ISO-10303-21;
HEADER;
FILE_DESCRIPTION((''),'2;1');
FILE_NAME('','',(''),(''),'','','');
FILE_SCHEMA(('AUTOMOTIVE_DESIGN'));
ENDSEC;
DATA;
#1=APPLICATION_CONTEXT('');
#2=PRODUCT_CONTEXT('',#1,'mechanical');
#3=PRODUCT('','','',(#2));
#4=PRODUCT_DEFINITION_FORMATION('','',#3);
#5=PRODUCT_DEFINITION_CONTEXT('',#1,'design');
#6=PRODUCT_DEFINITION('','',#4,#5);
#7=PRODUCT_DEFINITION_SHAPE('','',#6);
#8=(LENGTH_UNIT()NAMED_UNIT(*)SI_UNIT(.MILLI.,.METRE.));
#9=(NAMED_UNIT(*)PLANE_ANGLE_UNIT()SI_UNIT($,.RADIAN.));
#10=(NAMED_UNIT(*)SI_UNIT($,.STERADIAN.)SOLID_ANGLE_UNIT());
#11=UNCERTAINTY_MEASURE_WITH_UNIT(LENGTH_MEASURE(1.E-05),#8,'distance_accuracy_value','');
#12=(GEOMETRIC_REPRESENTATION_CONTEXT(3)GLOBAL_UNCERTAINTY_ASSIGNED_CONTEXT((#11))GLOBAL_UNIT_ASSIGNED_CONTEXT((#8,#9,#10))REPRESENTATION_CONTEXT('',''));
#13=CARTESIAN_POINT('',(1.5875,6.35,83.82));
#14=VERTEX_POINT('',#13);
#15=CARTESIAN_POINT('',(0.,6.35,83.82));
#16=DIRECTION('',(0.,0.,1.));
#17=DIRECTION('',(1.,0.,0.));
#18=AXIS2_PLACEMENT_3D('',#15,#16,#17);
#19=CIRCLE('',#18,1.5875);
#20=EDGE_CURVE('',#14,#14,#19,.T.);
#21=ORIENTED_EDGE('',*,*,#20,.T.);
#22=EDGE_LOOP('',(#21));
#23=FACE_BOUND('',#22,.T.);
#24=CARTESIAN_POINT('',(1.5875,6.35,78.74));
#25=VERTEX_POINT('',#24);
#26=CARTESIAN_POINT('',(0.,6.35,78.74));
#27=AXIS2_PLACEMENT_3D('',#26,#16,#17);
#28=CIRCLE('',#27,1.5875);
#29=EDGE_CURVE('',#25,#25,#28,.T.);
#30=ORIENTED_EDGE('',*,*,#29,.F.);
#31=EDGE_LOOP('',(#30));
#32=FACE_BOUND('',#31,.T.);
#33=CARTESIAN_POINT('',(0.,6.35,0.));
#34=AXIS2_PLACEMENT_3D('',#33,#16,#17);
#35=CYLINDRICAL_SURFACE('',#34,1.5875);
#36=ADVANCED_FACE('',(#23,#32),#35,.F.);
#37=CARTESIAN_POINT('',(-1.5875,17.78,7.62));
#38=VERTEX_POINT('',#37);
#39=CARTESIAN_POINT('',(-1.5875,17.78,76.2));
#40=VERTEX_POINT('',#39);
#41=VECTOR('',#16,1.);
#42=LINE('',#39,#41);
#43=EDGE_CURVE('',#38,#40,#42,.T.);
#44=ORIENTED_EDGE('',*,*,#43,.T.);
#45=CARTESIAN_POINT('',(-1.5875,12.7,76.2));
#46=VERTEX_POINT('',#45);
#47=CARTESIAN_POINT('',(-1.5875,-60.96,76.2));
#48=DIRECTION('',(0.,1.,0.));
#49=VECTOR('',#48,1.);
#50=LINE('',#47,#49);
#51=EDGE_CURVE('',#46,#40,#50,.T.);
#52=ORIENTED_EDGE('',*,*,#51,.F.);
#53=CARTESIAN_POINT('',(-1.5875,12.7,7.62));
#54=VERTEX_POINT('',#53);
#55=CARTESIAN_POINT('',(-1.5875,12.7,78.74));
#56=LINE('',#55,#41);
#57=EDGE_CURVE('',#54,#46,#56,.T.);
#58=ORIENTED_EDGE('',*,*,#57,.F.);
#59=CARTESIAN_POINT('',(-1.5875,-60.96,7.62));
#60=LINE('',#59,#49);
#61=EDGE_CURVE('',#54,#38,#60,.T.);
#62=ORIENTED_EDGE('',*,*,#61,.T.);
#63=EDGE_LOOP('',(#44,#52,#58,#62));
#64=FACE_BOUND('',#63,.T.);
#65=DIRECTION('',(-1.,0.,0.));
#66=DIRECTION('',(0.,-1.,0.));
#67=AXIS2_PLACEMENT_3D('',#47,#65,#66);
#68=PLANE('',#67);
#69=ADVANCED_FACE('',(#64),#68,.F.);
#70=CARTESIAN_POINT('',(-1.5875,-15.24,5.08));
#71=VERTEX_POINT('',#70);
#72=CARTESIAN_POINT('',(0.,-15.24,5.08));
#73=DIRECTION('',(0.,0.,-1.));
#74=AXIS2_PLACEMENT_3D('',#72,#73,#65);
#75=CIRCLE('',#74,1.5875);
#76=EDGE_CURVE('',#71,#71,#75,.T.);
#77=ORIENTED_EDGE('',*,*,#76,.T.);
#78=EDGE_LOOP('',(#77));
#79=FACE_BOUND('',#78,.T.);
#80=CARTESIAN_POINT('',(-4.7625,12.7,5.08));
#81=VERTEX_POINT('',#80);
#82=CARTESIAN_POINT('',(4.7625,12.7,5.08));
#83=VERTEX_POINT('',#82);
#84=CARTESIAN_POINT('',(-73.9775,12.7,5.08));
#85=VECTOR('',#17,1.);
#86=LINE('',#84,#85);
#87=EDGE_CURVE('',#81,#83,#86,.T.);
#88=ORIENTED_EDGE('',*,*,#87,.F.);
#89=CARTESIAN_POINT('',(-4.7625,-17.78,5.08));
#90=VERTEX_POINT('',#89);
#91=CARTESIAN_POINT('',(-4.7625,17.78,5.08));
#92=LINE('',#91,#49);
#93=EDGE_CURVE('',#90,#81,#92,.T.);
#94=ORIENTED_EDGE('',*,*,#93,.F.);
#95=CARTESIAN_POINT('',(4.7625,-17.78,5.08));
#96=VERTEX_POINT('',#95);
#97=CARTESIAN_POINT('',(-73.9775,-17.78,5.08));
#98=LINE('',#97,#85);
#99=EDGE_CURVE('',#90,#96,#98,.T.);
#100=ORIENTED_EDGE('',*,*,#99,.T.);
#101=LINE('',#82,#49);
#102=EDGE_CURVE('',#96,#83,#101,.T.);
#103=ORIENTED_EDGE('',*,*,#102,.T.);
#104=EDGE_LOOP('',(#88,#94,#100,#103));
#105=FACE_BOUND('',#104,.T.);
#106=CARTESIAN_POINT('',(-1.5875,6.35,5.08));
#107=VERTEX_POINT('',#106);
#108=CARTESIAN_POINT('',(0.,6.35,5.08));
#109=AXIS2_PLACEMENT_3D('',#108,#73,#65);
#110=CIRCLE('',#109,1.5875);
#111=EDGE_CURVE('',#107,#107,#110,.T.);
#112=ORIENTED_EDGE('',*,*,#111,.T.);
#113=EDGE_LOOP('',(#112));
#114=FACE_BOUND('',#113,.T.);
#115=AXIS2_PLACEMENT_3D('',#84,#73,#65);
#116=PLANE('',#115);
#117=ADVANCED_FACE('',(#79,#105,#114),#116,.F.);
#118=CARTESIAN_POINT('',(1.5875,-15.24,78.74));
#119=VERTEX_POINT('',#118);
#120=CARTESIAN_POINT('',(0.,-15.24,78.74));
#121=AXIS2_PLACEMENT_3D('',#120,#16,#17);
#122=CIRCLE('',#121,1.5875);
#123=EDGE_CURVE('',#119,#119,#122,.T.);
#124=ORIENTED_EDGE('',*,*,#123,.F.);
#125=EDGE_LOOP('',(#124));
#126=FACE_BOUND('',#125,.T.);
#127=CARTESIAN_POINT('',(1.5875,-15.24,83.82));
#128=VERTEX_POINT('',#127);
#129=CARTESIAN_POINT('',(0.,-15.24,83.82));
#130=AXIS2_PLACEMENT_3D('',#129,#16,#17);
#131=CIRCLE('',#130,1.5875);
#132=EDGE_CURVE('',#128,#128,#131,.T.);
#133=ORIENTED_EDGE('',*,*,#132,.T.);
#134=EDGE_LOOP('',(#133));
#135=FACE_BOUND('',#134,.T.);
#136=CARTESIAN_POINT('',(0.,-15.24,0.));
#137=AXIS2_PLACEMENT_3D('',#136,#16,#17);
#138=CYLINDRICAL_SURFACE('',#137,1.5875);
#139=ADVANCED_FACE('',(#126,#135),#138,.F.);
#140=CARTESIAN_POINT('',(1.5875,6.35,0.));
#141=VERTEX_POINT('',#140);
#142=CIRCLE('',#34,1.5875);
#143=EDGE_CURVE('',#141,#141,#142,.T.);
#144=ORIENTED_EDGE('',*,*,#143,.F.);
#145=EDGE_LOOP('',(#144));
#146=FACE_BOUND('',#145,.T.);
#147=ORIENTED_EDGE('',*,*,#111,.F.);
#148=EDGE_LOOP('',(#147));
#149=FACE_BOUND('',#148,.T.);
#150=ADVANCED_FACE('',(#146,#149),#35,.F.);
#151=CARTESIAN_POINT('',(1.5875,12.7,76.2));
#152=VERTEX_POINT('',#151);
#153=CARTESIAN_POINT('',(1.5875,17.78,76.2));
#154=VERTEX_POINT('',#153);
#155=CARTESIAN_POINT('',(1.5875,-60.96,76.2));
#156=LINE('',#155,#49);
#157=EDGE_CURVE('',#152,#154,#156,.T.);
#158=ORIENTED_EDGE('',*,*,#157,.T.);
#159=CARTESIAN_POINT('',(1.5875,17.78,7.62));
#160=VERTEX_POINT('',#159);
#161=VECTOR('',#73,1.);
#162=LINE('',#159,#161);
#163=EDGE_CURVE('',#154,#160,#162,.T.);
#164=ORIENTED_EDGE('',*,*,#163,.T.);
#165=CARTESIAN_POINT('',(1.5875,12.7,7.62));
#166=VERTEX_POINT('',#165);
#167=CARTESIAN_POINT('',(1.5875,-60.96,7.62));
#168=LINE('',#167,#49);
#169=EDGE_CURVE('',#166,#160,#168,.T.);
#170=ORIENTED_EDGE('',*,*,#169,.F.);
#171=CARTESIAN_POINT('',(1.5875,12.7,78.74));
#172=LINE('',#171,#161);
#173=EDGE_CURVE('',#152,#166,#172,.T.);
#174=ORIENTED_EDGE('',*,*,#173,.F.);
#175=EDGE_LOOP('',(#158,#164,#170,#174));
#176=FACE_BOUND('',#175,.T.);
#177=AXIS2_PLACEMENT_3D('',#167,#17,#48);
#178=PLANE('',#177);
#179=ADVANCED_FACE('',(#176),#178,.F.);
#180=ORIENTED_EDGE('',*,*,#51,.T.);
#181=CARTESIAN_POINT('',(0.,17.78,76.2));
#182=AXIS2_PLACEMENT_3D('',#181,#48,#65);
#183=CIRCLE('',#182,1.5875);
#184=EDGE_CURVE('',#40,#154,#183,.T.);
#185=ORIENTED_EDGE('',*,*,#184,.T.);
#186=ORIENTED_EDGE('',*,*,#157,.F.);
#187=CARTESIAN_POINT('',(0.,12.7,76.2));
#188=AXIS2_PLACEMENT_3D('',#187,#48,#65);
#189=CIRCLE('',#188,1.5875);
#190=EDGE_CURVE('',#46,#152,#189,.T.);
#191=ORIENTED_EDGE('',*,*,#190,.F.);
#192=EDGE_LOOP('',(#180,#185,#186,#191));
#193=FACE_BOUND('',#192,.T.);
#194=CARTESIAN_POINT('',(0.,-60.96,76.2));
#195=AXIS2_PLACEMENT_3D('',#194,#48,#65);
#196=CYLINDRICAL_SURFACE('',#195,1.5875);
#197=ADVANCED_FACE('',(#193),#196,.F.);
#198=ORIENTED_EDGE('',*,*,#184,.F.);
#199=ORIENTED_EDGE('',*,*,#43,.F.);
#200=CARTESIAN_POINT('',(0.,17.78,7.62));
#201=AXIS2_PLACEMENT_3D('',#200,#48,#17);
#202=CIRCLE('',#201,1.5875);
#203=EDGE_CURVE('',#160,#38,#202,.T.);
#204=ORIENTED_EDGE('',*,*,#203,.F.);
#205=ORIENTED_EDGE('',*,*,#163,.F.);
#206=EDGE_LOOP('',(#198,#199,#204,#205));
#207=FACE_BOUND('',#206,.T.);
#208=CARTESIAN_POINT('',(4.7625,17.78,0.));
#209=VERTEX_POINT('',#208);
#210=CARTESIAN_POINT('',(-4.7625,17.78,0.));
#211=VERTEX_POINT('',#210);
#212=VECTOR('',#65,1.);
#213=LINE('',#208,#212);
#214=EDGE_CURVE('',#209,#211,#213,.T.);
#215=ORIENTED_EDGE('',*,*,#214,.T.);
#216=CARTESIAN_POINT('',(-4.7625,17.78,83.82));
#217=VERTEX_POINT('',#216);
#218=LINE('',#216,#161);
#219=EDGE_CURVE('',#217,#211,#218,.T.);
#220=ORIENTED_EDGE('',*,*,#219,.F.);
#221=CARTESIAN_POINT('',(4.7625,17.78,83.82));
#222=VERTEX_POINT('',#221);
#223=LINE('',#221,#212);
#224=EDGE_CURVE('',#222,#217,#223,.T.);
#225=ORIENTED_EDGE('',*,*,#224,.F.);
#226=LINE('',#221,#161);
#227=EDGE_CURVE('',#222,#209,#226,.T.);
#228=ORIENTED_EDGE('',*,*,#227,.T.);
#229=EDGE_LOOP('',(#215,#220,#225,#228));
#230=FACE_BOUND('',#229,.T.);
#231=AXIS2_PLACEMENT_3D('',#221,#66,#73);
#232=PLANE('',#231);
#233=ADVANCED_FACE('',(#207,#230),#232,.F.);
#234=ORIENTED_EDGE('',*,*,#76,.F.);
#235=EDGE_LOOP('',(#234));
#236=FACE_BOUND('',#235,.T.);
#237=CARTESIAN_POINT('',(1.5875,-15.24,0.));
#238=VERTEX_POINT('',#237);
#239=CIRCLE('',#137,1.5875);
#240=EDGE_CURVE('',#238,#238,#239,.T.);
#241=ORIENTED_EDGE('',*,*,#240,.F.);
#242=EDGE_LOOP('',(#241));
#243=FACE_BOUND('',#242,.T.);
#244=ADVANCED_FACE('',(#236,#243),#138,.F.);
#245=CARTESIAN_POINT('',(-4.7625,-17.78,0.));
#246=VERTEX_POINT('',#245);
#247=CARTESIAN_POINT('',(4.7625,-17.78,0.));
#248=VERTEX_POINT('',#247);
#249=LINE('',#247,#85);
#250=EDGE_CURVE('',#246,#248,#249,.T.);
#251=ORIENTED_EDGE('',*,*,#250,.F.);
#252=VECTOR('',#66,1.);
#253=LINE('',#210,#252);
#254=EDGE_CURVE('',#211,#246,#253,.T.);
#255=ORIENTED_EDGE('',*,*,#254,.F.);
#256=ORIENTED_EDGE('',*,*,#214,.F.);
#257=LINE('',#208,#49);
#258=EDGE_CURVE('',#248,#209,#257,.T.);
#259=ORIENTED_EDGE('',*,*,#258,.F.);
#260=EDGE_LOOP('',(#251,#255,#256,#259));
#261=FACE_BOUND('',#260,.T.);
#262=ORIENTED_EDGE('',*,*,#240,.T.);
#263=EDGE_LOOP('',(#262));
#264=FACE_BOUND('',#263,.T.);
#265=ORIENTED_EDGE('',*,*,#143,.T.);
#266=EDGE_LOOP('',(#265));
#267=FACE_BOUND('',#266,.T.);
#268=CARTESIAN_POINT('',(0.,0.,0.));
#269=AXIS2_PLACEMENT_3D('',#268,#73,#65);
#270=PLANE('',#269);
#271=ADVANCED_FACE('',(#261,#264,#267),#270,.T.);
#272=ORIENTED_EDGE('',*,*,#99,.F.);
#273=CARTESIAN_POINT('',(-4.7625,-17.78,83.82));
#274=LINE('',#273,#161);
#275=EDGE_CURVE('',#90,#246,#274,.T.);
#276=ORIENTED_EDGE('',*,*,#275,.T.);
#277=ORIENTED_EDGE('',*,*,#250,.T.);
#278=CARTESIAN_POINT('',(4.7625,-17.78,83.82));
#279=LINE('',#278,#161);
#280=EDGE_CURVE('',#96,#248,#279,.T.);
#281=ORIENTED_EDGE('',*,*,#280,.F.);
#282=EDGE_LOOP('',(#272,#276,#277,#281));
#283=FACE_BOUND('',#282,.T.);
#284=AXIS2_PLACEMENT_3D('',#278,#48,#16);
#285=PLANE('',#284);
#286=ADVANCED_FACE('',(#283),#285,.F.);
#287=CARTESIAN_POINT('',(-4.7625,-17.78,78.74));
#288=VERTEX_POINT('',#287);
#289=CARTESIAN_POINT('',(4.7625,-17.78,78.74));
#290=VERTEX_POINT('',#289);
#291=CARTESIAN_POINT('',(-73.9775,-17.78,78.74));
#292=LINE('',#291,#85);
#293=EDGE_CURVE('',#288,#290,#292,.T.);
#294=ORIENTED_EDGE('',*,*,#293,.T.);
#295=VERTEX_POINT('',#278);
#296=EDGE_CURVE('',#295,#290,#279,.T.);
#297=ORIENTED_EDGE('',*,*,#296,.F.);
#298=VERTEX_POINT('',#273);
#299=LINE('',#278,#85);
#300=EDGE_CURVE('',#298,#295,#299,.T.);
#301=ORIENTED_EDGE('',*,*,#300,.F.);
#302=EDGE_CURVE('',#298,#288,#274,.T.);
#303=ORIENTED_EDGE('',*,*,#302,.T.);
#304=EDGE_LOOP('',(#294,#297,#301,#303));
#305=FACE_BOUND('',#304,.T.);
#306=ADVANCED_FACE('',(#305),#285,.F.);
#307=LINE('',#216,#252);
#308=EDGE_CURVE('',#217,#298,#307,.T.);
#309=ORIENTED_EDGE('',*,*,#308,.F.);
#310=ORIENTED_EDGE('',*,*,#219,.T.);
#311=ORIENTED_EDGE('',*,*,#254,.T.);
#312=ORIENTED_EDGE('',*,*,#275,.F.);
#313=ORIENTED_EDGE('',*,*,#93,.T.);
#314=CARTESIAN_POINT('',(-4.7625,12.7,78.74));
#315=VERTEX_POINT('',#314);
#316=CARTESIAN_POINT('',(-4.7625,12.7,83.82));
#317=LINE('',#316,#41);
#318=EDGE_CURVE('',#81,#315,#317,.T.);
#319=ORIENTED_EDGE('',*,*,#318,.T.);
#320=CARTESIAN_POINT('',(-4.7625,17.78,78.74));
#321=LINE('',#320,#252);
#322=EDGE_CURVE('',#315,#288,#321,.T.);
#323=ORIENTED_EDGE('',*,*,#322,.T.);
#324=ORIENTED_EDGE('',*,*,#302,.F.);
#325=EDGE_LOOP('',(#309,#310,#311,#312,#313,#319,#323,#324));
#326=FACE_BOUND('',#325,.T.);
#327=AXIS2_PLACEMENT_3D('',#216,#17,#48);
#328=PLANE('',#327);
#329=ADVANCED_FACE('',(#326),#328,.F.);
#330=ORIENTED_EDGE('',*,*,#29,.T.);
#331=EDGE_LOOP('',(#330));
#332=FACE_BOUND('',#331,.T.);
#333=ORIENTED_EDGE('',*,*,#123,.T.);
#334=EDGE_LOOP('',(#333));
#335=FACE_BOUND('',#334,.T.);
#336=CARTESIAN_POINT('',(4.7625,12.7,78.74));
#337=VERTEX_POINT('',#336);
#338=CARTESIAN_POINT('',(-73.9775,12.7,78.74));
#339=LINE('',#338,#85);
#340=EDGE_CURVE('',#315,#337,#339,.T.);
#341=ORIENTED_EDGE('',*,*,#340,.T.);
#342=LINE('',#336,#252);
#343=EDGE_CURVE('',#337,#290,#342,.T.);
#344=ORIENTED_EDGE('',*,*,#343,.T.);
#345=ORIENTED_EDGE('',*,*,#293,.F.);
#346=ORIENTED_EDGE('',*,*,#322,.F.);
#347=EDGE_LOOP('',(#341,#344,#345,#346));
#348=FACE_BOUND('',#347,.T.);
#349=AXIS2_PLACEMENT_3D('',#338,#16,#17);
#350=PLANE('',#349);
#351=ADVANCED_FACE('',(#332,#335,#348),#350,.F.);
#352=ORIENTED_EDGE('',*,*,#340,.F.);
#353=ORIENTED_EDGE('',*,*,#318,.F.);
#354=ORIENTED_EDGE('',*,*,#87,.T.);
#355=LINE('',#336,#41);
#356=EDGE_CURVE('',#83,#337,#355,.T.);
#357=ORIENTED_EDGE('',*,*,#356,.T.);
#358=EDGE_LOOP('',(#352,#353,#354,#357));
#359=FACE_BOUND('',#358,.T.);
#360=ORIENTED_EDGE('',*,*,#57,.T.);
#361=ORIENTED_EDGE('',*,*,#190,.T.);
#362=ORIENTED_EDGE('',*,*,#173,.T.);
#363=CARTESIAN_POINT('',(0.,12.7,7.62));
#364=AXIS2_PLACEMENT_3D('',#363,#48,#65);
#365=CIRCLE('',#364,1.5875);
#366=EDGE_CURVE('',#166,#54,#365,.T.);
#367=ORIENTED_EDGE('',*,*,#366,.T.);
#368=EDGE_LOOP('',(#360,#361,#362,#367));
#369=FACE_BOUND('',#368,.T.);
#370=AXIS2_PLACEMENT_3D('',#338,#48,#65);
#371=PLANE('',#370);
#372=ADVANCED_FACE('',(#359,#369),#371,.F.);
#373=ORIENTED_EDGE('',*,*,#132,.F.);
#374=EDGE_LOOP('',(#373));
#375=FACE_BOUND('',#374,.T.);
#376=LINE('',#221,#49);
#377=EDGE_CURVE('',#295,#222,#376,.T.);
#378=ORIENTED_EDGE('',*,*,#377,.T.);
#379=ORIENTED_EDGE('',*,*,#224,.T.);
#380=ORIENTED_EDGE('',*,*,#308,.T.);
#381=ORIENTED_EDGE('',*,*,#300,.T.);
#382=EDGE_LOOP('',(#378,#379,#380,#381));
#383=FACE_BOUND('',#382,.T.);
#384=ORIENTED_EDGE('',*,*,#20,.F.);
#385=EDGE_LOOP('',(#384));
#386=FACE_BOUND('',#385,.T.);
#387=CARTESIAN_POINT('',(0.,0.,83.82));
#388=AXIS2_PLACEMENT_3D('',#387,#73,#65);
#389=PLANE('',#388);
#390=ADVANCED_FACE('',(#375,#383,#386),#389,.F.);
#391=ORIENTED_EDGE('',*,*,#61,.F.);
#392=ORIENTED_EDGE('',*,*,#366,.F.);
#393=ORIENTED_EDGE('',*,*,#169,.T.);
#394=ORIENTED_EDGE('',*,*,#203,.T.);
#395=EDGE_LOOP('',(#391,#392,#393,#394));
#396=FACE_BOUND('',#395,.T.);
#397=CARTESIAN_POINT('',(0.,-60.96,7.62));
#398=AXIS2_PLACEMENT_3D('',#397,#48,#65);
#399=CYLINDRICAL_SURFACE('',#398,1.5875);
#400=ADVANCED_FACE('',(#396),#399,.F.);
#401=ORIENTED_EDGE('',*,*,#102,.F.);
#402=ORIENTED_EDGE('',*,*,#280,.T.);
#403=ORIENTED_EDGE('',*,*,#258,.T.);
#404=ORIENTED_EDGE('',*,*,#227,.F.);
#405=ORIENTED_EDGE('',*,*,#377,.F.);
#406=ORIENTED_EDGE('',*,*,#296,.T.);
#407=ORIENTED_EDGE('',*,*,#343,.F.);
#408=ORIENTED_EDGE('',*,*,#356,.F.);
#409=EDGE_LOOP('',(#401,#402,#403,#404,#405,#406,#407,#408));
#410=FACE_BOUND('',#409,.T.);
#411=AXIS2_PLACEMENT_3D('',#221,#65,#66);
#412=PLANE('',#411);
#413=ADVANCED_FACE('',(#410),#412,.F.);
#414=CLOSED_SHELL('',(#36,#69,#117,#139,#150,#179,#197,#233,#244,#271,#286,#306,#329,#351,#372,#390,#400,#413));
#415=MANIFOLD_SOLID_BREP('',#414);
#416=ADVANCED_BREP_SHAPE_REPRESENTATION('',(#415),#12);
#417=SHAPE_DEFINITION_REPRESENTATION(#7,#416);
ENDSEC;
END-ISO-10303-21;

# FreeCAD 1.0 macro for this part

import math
import FreeCAD as App
import Part
import Sketcher
Q = App.Units.Quantity


def add_polygon(sketch, points):
    """Adds a closed chain of lines whose ends are joined by coincident constraints."""
    first, n = sketch.GeometryCount, len(points)
    for a, b in zip(points, points[1:] + points[:1]):
        sketch.addGeometry(Part.LineSegment(App.Vector(*a, 0), App.Vector(*b, 0)), False)
    for i in range(n):
        sketch.addConstraint(Sketcher.Constraint("Coincident", first + i, 2, first + (i + 1) % n, 1))

doc = App.newDocument("Part")
body = doc.addObject("PartDesign::Body", "Body")

sketch1 = body.newObject("Sketcher::SketchObject", "Sketch")
sketch1.AttachmentSupport = (doc.getObject("XY_Plane"), [""])
sketch1.MapMode = "FlatFace"
add_polygon(sketch1, [(-5, 18), (-5, -18), (5, -18), (5, 18)])
sketch1.addConstraint([
    Sketcher.Constraint("Vertical", 0),
    Sketcher.Constraint("Horizontal", 1),
    Sketcher.Constraint("Vertical", 2),
    Sketcher.Constraint("Horizontal", 3),
    Sketcher.Constraint("Symmetric", 0, 2, 2, 2, -1, 1),
    Sketcher.Constraint("DistanceY", 0, 2, 0, 1, Q("1.4 in")),
    Sketcher.Constraint("DistanceX", 1, 1, 1, 2, Q("0.375 in")),
])
pad1 = body.newObject("PartDesign::Pad", "Pad")
pad1.Profile = sketch1
pad1.Length = Q("3.3 in")

sketch2 = body.newObject("Sketcher::SketchObject", "Sketch001")
sketch2.AttachmentSupport = (doc.getObject("YZ_Plane"), [""])
sketch2.MapMode = "FlatFace"
sketch2.AttachmentOffset = App.Placement(App.Vector(0, 0, 0.1875 * 25.4), App.Rotation())
add_polygon(sketch2, [(13, 79), (-18, 79), (-18, 5), (13, 5)])
sketch2.addConstraint([
    Sketcher.Constraint("Horizontal", 0),
    Sketcher.Constraint("Vertical", 1),
    Sketcher.Constraint("Horizontal", 2),
    Sketcher.Constraint("Vertical", 3),
    Sketcher.Constraint("DistanceX", 0, 2, 0, 1, Q("1.2 in")),
    Sketcher.Constraint("DistanceY", 1, 2, 1, 1, Q("2.9 in")),
    Sketcher.Constraint("DistanceX", 0, 2, -1, 1, Q("0.7 in")),
    Sketcher.Constraint("DistanceY", -1, 1, 0, 2, Q("3.1 in")),
])
pocket1 = body.newObject("PartDesign::Pocket", "Pocket")
pocket1.Profile = sketch2
pocket1.Length = Q("3.1 in")

sketch3 = body.newObject("Sketcher::SketchObject", "Sketch002")
sketch3.AttachmentSupport = (doc.getObject("XZ_Plane"), [""])
sketch3.MapMode = "FlatFace"
sketch3.AttachmentOffset = App.Placement(App.Vector(0, 0, -0.7 * 25.4), App.Rotation())
sketch3.addGeometry([
    Part.LineSegment(App.Vector(-1.6, 7.6, 0), App.Vector(-1.6, 76.2, 0)),
    Part.ArcOfCircle(Part.Circle(App.Vector(0, 76.2, 0), App.Vector(0, 0, 1), 1.6), math.radians(0), math.radians(180)),
    Part.LineSegment(App.Vector(1.6, 76.2, 0), App.Vector(1.6, 7.6, 0)),
    Part.ArcOfCircle(Part.Circle(App.Vector(0, 7.6, 0), App.Vector(0, 0, 1), 1.6), math.radians(180), math.radians(360)),
], False)
sketch3.addConstraint([
    Sketcher.Constraint("Tangent", 0, 2, 1, 2),
    Sketcher.Constraint("Tangent", 1, 1, 2, 1),
    Sketcher.Constraint("Tangent", 2, 2, 3, 2),
    Sketcher.Constraint("Tangent", 3, 1, 0, 1),
    Sketcher.Constraint("Vertical", 0),
    Sketcher.Constraint("Vertical", 2),
    Sketcher.Constraint("PointOnObject", 1, 3, -2),
    Sketcher.Constraint("DistanceY", 0, 1, 0, 2, Q("2.7 in")),
    Sketcher.Constraint("DistanceY", -1, 1, 1, 3, Q("3 in")),
    Sketcher.Constraint("Radius", 1, Q("0.0625 in")),
])
pocket2 = body.newObject("PartDesign::Pocket", "Pocket001")
pocket2.Profile = sketch3
pocket2.Length = Q("3.1 in")
pocket2.Reversed = True

sketch4 = body.newObject("Sketcher::SketchObject", "Sketch003")
sketch4.AttachmentSupport = (doc.getObject("XY_Plane"), [""])
sketch4.MapMode = "FlatFace"
sketch4.AttachmentOffset = App.Placement(App.Vector(0, 0, 3.3 * 25.4), App.Rotation())
sketch4.addGeometry(Part.Circle(App.Vector(0, -15.2, 0), App.Vector(0, 0, 1), 1.6), False)
sketch4.addConstraint([
    Sketcher.Constraint("PointOnObject", 0, 3, -2),
    Sketcher.Constraint("Diameter", 0, Q("0.125 in")),
    Sketcher.Constraint("DistanceY", 0, 3, -1, 1, Q("0.6 in")),
])
pocket3 = body.newObject("PartDesign::Pocket", "Pocket002")
pocket3.Profile = sketch4
pocket3.Type = "ThroughAll"

sketch5 = body.newObject("Sketcher::SketchObject", "Sketch004")
sketch5.AttachmentSupport = (doc.getObject("XY_Plane"), [""])
sketch5.MapMode = "FlatFace"
sketch5.AttachmentOffset = App.Placement(App.Vector(0, 0, 3.3 * 25.4), App.Rotation())
sketch5.addGeometry(Part.Circle(App.Vector(0, 6.3, 0), App.Vector(0, 0, 1), 1.6), False)
sketch5.addConstraint([
    Sketcher.Constraint("PointOnObject", 0, 3, -2),
    Sketcher.Constraint("Diameter", 0, Q("0.125 in")),
    Sketcher.Constraint("DistanceY", -1, 1, 0, 3, Q("0.25 in")),
])
pocket4 = body.newObject("PartDesign::Pocket", "Pocket003")
pocket4.Profile = sketch5
pocket4.Type = "ThroughAll"

doc.recompute()
